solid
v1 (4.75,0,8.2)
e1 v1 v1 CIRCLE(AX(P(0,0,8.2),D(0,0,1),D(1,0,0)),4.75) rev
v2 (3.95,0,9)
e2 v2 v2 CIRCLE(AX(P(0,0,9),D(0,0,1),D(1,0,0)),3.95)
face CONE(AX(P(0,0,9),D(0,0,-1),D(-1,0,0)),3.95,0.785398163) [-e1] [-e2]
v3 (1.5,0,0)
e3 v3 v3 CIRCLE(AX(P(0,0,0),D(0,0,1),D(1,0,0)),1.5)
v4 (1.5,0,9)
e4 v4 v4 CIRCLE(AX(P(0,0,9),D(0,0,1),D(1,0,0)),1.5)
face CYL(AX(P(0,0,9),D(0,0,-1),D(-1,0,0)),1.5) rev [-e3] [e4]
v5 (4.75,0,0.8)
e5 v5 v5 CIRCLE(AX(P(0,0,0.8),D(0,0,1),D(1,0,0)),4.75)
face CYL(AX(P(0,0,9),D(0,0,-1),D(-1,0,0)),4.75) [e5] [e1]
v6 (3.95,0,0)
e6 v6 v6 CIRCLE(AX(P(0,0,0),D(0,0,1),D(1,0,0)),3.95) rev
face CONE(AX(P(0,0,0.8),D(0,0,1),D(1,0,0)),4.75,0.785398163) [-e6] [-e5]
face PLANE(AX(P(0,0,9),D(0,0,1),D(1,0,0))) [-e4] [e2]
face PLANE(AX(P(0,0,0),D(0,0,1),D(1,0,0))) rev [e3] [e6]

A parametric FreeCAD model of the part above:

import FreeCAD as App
import Part
import Sketcher

V = App.Vector


def edges_at(feature, points):
    """Names of the edges that pass closest to the given points."""
    edges = feature.Shape.Edges
    near = lambda p: min(range(len(edges)), key=lambda i: edges[i].distToShape(Part.Vertex(*p))[0])
    return sorted({f"Edge{near(p) + 1}" for p in points})

doc = App.newDocument("Part")
body = doc.addObject("PartDesign::Body", "Body")

# Sketch on XY plane
sketch1 = body.newObject("Sketcher::SketchObject", "Sketch")
sketch1.AttachmentSupport = (doc.getObject("XY_Plane"), [""])
sketch1.MapMode = "FlatFace"
sketch1.addGeometry([
    Part.Circle(V(0, 0, 0), V(0, 0, 1), 4.8),
    Part.Circle(V(0, 0, 0), V(0, 0, 1), 1.5),
], False)
sketch1.addConstraint([
    Sketcher.Constraint("Coincident", 0, 3, -1, 1),
    Sketcher.Constraint("Coincident", 1, 3, -1, 1),
    Sketcher.Constraint("Diameter", 1, 3.0),
    Sketcher.Constraint("Diameter", 0, 9.5),
])
pad1 = body.newObject("PartDesign::Pad", "Pad")
pad1.Profile = sketch1
pad1.Length = 9
doc.recompute()

chamfer = body.newObject("PartDesign::Chamfer", "Chamfer")
chamfer.Base = (pad1, edges_at(pad1, [(-4.75, 0, 0), (-4.75, 0, 9)]))
chamfer.Size = 0.8

doc.recompute()
